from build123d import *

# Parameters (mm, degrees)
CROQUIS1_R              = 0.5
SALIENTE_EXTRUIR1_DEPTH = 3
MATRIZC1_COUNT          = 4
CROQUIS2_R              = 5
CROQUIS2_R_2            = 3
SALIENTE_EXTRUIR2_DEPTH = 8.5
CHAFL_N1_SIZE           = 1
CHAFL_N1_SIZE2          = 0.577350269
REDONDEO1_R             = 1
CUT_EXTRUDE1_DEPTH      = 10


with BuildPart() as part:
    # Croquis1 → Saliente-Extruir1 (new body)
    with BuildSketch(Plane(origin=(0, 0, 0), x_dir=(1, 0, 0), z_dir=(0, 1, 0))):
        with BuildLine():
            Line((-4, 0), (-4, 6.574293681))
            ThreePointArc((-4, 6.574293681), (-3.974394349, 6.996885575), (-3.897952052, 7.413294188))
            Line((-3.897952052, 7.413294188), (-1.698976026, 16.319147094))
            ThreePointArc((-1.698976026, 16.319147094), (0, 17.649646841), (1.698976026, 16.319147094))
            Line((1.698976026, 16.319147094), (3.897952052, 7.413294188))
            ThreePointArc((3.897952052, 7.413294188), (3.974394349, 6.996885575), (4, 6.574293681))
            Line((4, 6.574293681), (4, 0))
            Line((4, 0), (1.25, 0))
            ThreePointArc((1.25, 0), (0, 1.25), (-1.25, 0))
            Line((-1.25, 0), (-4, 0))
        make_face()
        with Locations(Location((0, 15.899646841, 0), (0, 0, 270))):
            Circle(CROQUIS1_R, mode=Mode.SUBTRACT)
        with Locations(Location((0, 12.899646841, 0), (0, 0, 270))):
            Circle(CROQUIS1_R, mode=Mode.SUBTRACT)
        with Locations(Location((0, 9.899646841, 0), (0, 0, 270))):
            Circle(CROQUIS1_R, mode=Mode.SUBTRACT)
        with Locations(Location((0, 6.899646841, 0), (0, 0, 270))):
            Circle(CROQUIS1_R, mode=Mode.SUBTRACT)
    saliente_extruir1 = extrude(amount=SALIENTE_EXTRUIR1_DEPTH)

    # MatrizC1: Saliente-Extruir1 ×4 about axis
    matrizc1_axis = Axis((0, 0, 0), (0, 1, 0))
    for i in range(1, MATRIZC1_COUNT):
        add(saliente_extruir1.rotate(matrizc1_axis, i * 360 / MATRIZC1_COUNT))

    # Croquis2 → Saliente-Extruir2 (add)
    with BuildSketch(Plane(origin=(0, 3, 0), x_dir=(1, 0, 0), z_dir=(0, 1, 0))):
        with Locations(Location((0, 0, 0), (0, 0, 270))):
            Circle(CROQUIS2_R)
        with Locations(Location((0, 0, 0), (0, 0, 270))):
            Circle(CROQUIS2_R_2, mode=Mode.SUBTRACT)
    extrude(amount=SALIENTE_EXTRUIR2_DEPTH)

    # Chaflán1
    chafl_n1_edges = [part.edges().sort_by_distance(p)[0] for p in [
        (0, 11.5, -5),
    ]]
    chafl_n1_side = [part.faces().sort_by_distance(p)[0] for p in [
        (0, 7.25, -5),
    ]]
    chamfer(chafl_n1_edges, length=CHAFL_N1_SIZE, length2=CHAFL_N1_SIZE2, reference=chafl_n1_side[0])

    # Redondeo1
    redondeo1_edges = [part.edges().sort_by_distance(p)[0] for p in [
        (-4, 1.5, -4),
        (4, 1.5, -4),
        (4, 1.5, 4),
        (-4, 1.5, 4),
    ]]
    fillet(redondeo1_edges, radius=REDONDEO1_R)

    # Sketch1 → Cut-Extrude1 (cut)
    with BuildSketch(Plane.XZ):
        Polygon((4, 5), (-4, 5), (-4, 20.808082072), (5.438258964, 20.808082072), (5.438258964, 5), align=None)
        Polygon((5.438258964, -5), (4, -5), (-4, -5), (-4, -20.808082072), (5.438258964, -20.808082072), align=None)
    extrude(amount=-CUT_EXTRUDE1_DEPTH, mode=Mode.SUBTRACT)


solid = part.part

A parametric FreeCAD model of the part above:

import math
import FreeCAD as App
import Part
import Sketcher


def edges_at(feature, points):
    """Names of the edges that pass closest to the given points."""
    edges = feature.Shape.Edges
    near = lambda p: min(range(len(edges)), key=lambda i: edges[i].distToShape(Part.Vertex(*p))[0])
    return sorted({f"Edge{near(p) + 1}" for p in points})


def add_polygon(sketch, points):
    """Adds a closed chain of lines whose ends are joined by coincident constraints."""
    first, n = sketch.GeometryCount, len(points)
    for a, b in zip(points, points[1:] + points[:1]):
        sketch.addGeometry(Part.LineSegment(App.Vector(*a, 0), App.Vector(*b, 0)), False)
    for i in range(n):
        sketch.addConstraint(Sketcher.Constraint("Coincident", first + i, 2, first + (i + 1) % n, 1))

doc = App.newDocument("Part")
body = doc.addObject("PartDesign::Body", "Body")

# Sketch on XZ plane
sketch1 = doc.addObject("Sketcher::SketchObject", "Sketch")
body.addObject(sketch1)
sketch1.AttachmentSupport = (doc.XZ_Plane, [""])
sketch1.MapMode = "FlatFace"
sketch1.addGeometry([
    Part.LineSegment(App.Vector(-4, -6.6, 0), App.Vector(-4, 0, 0)),  # 0
    Part.LineSegment(App.Vector(-4, 0, 0), App.Vector(-1.2, 0, 0)),  # 1
    Part.ArcOfCircle(Part.Circle(App.Vector(0, 0, 0), App.Vector(0, 0, 1), 1.2), math.radians(180), math.radians(360)),  # 2
    Part.LineSegment(App.Vector(1.2, 0, 0), App.Vector(4, 0, 0)),  # 3
    Part.LineSegment(App.Vector(4, 0, 0), App.Vector(4, -6.6, 0)),  # 4
    Part.ArcOfCircle(Part.Circle(App.Vector(0.5, -6.6, 0), App.Vector(0, 0, 1), 3.5), math.radians(-13.87), math.radians(0)),  # 5
    Part.LineSegment(App.Vector(3.9, -7.4, 0), App.Vector(1.7, -16.3, 0)),  # 6
    Part.ArcOfCircle(Part.Circle(App.Vector(0, -15.9, 0), App.Vector(0, 0, 1), 1.8), math.radians(-166), math.radians(-14)),  # 7
    Part.LineSegment(App.Vector(-1.7, -16.3, 0), App.Vector(-3.9, -7.4, 0)),  # 8
    Part.ArcOfCircle(Part.Circle(App.Vector(-0.5, -6.6, 0), App.Vector(0, 0, 1), 3.5), math.radians(180), math.radians(193.87)),  # 9
    Part.Circle(App.Vector(0, -6.9, 0), App.Vector(0, 0, 1), 0.5),  # 10
    Part.Circle(App.Vector(0, -9.9, 0), App.Vector(0, 0, 1), 0.5),  # 11
    Part.Circle(App.Vector(0, -12.9, 0), App.Vector(0, 0, 1), 0.5),  # 12
    Part.Circle(App.Vector(0, -15.9, 0), App.Vector(0, 0, 1), 0.5),  # 13
], False)
sketch1.addConstraint([
    Sketcher.Constraint("Coincident", 0, 2, 1, 1),
    Sketcher.Constraint("Coincident", 1, 2, 2, 1),
    Sketcher.Constraint("Coincident", 2, 2, 3, 1),
    Sketcher.Constraint("Coincident", 3, 2, 4, 1),
    Sketcher.Constraint("Tangent", 4, 2, 5, 2),
    Sketcher.Constraint("Tangent", 5, 1, 6, 1),
    Sketcher.Constraint("Tangent", 6, 2, 7, 2),
    Sketcher.Constraint("Tangent", 7, 1, 8, 1),
    Sketcher.Constraint("Tangent", 8, 2, 9, 2),
    Sketcher.Constraint("Tangent", 9, 1, 0, 1),
    Sketcher.Constraint("Vertical", 0),
    Sketcher.Constraint("Horizontal", 1),
    Sketcher.Constraint("Horizontal", 3),
    Sketcher.Constraint("Vertical", 4),
    Sketcher.Constraint("Coincident", 2, 3, -1, 1),
    Sketcher.Constraint("Coincident", 13, 3, 7, 3),
    Sketcher.Constraint("Equal", 5, 9),
    Sketcher.Constraint("Equal", 10, 11),
    Sketcher.Constraint("Equal", 11, 12),
    Sketcher.Constraint("Equal", 12, 13),
    Sketcher.Constraint("Symmetric", 0, 2, 3, 2, -1, 1),
    Sketcher.Constraint("Symmetric", 6, 2, 7, 1, -2),
    Sketcher.Constraint("PointOnObject", 10, 3, -2),
    Sketcher.Constraint("PointOnObject", 11, 3, -2),
    Sketcher.Constraint("PointOnObject", 12, 3, -2),
    Sketcher.Constraint("PointOnObject", 0, 2, -1),
    Sketcher.Constraint("Diameter", 10, 1.0),
    Sketcher.Constraint("Radius", 5, 3.5),
    Sketcher.Constraint("Radius", 2, 1.25),
    Sketcher.Constraint("Radius", 7, 1.75),
    Sketcher.Constraint("DistanceX", 0, 2, -1, 1, 4.0),
    Sketcher.Constraint("DistanceY", 7, 3, 10, 3, 9.0),
    Sketcher.Constraint("DistanceY", 11, 3, 10, 3, 3.0),
    Sketcher.Constraint("DistanceY", 7, 3, 12, 3, 3.0),
    Sketcher.Constraint("DistanceY", 5, 1, 4, 2, 0.839001),
    Sketcher.Constraint("DistanceY", 0, 1, 0, 2, 6.574294),
])
pad1 = doc.addObject("PartDesign::Pad", "Pad")
body.addObject(pad1)
pad1.Profile = sketch1
pad1.Length = 3
pad1.Reversed = True
doc.recompute()

polarpattern = doc.addObject("PartDesign::PolarPattern", "PolarPattern")
body.addObject(polarpattern)
polarpattern.Originals = [pad1]
polarpattern.Axis = (doc.Y_Axis, [""])
polarpattern.Angle = 360
polarpattern.Occurrences = 4
body.Tip = polarpattern

# Sketch on XZ plane
sketch2 = doc.addObject("Sketcher::SketchObject", "Sketch001")
body.addObject(sketch2)
sketch2.AttachmentSupport = (doc.XZ_Plane, [""])
sketch2.MapMode = "FlatFace"
sketch2.AttachmentOffset = App.Placement(App.Vector(0, 0, -3), App.Rotation())
sketch2.addGeometry([
    Part.Circle(App.Vector(0, 0, 0), App.Vector(0, 0, 1), 5),
    Part.Circle(App.Vector(0, 0, 0), App.Vector(0, 0, 1), 3),
], False)
sketch2.addConstraint([
    Sketcher.Constraint("Coincident", 0, 3, -1, 1),
    Sketcher.Constraint("Coincident", 1, 3, -1, 1),
    Sketcher.Constraint("Diameter", 0, 10.0),
    Sketcher.Constraint("Diameter", 1, 6.0),
])
pad2 = doc.addObject("PartDesign::Pad", "Pad001")
body.addObject(pad2)
pad2.Profile = sketch2
pad2.Length = 8.5
pad2.Reversed = True
doc.recompute()

chamfer = doc.addObject("PartDesign::Chamfer", "Chamfer")
body.addObject(chamfer)
chamfer.Base = (pad2, edges_at(pad2, [(0, 11.5, -5)]))
chamfer.ChamferType = "Two distances"
chamfer.Size = 1
chamfer.Size2 = 0.57735
doc.recompute()

fillet = doc.addObject("PartDesign::Fillet", "Fillet")
body.addObject(fillet)
fillet.Base = (chamfer, edges_at(chamfer, [
    (-4, 1.5, -4),
    (4, 1.5, -4),
    (4, 1.5, 4),
    (-4, 1.5, 4),
]))
fillet.Radius = 1

# Sketch on XZ plane
sketch3 = doc.addObject("Sketcher::SketchObject", "Sketch002")
body.addObject(sketch3)
sketch3.AttachmentSupport = (doc.XZ_Plane, [""])
sketch3.MapMode = "FlatFace"
add_polygon(sketch3, [(-4, 5), (5, 5), (5, 21), (-4, 21)])  # lines 0-3
add_polygon(sketch3, [(5, -5), (-4, -5), (-4, -21), (5, -21)])  # lines 4-7
sketch3.addConstraint([
    Sketcher.Constraint("Horizontal", 0),
    Sketcher.Constraint("Vertical", 1),
    Sketcher.Constraint("Horizontal", 2),
    Sketcher.Constraint("Vertical", 3),
    Sketcher.Constraint("Horizontal", 4),
    Sketcher.Constraint("Vertical", 5),
    Sketcher.Constraint("Horizontal", 6),
    Sketcher.Constraint("Vertical", 7),
    Sketcher.Constraint("Symmetric", 3, 2, 4, 2, -1),
    Sketcher.Constraint("Symmetric", 1, 2, 6, 2, -1),
    Sketcher.Constraint("DistanceY", -1, 1, 0, 2, 5.0),
    Sketcher.Constraint("DistanceX", 2, 2, -1, 1, 4.0),
    Sketcher.Constraint("DistanceX", 0, 1, 0, 2, 9.438259),
    Sketcher.Constraint("DistanceY", 1, 1, 1, 2, 15.808082),
])
pocket1 = doc.addObject("PartDesign::Pocket", "Pocket")
body.addObject(pocket1)
pocket1.Profile = sketch3
pocket1.Length = 10

doc.recompute()
